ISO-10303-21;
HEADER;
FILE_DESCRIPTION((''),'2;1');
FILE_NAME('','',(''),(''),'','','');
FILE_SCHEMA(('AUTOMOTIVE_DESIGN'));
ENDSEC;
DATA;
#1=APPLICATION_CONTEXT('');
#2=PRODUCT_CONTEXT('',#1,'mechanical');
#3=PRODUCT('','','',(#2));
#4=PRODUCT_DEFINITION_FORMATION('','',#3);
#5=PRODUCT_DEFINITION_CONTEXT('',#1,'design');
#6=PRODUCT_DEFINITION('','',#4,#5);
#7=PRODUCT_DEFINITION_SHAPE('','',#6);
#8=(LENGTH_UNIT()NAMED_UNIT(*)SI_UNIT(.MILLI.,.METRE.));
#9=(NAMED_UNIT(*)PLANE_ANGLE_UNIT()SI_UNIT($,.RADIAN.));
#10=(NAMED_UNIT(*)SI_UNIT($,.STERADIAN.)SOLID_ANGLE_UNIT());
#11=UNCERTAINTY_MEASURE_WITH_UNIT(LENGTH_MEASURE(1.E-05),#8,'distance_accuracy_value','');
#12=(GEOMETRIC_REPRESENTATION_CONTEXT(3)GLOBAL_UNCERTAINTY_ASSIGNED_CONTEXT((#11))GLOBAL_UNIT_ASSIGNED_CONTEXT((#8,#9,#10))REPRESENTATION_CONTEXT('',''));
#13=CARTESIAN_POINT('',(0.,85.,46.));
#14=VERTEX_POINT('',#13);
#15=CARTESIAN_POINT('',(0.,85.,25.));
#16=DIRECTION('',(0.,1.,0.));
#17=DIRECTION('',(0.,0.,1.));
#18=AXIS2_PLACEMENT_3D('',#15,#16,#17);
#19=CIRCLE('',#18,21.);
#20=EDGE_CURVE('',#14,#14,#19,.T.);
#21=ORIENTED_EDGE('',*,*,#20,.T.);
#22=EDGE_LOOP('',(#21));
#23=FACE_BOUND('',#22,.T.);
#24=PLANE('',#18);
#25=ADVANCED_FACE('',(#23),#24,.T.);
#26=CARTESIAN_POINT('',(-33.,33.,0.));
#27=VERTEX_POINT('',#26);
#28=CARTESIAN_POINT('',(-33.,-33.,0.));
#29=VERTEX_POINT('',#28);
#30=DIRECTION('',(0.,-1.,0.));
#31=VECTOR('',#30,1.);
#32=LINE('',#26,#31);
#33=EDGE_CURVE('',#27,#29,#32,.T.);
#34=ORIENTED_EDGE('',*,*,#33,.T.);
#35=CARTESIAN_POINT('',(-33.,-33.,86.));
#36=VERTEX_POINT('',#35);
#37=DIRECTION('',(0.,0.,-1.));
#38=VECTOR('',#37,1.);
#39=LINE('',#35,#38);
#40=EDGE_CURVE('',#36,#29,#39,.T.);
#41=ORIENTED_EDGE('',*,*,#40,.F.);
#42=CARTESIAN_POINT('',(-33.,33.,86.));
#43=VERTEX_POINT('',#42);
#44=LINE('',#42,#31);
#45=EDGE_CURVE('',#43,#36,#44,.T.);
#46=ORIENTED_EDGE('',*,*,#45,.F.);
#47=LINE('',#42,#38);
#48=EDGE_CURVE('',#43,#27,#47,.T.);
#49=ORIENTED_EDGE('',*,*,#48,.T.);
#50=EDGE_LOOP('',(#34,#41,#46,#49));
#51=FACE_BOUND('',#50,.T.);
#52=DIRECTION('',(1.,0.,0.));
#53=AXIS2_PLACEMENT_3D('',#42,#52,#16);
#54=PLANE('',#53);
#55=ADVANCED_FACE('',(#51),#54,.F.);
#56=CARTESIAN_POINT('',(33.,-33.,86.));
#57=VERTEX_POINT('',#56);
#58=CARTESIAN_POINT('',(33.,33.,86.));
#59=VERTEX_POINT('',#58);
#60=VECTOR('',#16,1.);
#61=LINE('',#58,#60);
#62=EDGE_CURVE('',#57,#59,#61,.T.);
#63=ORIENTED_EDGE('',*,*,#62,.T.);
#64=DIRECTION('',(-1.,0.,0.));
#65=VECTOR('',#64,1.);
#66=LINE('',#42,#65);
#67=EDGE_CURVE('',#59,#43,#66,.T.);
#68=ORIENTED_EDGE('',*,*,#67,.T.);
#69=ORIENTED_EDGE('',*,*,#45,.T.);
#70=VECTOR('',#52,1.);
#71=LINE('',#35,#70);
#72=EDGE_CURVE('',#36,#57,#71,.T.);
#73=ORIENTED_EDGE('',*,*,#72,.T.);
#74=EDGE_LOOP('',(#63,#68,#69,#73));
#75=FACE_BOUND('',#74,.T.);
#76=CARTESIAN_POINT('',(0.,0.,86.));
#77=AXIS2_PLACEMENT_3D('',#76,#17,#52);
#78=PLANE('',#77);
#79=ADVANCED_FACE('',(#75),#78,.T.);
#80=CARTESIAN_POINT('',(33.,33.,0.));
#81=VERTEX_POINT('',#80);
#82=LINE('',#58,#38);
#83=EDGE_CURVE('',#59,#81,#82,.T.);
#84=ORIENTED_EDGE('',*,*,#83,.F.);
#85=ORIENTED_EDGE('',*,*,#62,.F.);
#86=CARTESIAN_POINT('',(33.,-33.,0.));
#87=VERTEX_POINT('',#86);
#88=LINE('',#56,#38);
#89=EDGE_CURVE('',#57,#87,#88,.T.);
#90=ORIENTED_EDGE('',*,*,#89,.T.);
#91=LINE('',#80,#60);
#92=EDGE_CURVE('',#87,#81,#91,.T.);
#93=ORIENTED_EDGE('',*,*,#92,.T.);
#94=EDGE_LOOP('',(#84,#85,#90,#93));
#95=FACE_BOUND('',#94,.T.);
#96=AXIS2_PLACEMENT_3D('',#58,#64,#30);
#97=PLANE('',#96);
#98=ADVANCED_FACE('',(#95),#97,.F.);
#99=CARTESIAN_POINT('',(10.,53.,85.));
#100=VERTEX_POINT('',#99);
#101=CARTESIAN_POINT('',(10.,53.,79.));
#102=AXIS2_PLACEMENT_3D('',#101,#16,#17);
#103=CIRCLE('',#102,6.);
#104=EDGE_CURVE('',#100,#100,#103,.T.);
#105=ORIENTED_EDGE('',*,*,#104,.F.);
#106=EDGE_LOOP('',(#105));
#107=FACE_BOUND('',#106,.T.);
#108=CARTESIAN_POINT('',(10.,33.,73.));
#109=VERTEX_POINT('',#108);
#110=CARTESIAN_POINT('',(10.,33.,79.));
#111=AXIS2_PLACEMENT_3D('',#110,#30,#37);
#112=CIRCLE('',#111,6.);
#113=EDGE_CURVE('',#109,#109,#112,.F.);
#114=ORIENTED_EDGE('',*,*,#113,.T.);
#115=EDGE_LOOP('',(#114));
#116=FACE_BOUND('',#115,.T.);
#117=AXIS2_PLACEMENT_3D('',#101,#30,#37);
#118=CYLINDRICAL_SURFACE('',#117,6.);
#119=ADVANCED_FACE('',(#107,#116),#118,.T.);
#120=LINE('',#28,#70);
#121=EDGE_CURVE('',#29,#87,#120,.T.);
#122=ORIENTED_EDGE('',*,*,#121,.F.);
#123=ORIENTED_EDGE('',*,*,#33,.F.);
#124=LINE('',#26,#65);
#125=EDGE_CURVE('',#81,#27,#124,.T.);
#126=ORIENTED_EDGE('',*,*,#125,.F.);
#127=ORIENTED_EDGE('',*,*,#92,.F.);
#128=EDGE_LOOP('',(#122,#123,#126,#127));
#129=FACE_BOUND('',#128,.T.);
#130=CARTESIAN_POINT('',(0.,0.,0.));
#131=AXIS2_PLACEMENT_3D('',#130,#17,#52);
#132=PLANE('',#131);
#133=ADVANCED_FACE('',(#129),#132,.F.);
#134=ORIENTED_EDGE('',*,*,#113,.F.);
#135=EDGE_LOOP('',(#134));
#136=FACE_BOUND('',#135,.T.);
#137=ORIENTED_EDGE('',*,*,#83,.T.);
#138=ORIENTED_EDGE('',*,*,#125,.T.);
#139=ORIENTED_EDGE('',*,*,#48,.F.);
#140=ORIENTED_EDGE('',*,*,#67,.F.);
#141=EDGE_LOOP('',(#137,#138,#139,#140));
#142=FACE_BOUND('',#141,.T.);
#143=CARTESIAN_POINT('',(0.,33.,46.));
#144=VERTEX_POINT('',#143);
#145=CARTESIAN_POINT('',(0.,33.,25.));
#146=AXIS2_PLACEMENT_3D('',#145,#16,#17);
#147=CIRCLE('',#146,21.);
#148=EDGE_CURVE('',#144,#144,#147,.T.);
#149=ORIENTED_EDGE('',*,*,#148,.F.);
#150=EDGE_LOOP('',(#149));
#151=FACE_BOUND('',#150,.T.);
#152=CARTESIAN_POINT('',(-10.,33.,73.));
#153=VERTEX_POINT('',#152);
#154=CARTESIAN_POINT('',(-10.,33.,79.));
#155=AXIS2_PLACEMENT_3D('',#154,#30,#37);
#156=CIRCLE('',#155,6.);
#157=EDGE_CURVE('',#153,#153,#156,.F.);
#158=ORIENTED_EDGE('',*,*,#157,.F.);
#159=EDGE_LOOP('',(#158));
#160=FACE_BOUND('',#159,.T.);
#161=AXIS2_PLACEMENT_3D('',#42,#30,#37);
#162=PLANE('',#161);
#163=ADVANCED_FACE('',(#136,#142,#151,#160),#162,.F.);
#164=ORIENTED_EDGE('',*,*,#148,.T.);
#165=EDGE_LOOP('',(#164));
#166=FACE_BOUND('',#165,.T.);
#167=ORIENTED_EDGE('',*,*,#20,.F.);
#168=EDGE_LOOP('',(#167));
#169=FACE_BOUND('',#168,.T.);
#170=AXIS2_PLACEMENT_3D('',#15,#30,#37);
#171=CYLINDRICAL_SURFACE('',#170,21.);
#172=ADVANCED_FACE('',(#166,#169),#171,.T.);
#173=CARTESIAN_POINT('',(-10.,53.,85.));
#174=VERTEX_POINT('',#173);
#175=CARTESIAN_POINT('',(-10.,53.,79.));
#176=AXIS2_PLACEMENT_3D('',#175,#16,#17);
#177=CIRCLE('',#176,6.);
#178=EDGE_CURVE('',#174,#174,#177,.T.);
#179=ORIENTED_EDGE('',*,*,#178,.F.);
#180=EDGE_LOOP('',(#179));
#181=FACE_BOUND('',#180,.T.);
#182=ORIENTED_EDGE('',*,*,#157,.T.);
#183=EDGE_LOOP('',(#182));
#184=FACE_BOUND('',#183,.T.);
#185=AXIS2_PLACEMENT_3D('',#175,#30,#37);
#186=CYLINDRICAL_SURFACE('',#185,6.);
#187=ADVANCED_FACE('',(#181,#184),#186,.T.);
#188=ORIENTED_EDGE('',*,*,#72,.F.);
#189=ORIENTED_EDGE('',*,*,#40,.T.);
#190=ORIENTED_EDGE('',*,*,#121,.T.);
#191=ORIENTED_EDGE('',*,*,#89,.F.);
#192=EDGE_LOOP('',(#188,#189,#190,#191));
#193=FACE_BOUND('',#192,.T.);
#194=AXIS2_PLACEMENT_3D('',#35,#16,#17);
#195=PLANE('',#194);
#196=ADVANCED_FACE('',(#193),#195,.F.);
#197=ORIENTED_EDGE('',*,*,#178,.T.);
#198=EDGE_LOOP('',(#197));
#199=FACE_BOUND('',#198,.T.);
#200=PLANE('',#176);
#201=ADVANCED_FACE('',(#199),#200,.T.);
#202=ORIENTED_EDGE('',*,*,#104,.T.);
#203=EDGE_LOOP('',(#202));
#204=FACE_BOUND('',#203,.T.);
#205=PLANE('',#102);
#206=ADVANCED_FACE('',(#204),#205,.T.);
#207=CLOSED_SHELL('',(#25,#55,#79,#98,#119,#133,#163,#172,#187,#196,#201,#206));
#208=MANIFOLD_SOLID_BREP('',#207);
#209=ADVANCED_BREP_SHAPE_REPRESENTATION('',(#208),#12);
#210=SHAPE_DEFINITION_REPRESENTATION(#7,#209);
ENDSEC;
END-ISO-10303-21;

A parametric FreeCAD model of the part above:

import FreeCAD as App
import Part
import Sketcher

V = App.Vector
Q = App.Units.Quantity


def add_polygon(sketch, points):
    """Adds a closed chain of lines whose ends are joined by coincident constraints."""
    first, n = sketch.GeometryCount, len(points)
    for a, b in zip(points, points[1:] + points[:1]):
        sketch.addGeometry(Part.LineSegment(App.Vector(*a, 0), App.Vector(*b, 0)), False)
    for i in range(n):
        sketch.addConstraint(Sketcher.Constraint("Coincident", first + i, 2, first + (i + 1) % n, 1))

doc = App.newDocument("Part")
params = doc.addObject("Spreadsheet::Sheet", "Params")
for row, (alias, value) in enumerate([
    ("sketch1_width", "66 mm"),
    ("pad1_length", "86 mm"),
    ("sketch2_diameter", "42 mm"),
    ("pad2_length", "52 mm"),
    ("sketch3_diameter", "12 mm"),
    ("pad3_length", "20 mm"),
], start=1):
    params.set(f"A{row}", alias)
    params.set(f"B{row}", "=" + value)
    params.setAlias(f"B{row}", alias)

body = doc.addObject("PartDesign::Body", "Body")

# Sketch on XY plane
sketch1 = body.newObject("Sketcher::SketchObject", "Sketch")
sketch1.AttachmentSupport = (doc.getObject("XY_Plane"), [""])
sketch1.MapMode = "FlatFace"
add_polygon(sketch1, [(-33, 33), (-33, -33), (33, -33), (33, 33)])  # lines 0-3
sketch1.addConstraint(Sketcher.Constraint("Vertical", 0))
sketch1.addConstraint(Sketcher.Constraint("Horizontal", 1))
sketch1.addConstraint(Sketcher.Constraint("Vertical", 2))
sketch1.addConstraint(Sketcher.Constraint("Horizontal", 3))
sketch1.addConstraint(Sketcher.Constraint("Symmetric", 0, 2, 2, 2, -1, 1))
sketch1.addConstraint(Sketcher.Constraint("Equal", 3, 0))
sketch1.addConstraint(Sketcher.Constraint("DistanceX", 1, 1, 1, 2, Q("66 mm")))
sketch1.setExpression("Constraints[10]", "Params.sketch1_width")
pad1 = body.newObject("PartDesign::Pad", "Pad")
pad1.Profile = sketch1
pad1.setExpression("Length", "Params.pad1_length")

# Sketch on XZ plane
sketch2 = body.newObject("Sketcher::SketchObject", "Sketch001")
sketch2.AttachmentSupport = (doc.getObject("XZ_Plane"), [""])
sketch2.MapMode = "FlatFace"
sketch2.AttachmentOffset = App.Placement(V(0, 0, -33), App.Rotation())
sketch2.addGeometry(Part.Circle(V(0, 25, 0), V(0, 0, 1), 21), False)
sketch2.addConstraint(Sketcher.Constraint("PointOnObject", 0, 3, -2))
sketch2.addConstraint(Sketcher.Constraint("Diameter", 0, Q("42 mm")))
sketch2.addConstraint(Sketcher.Constraint("DistanceY", -1, 1, 0, 3, Q("25 mm")))
sketch2.setExpression("Constraints[1]", "Params.sketch2_diameter")
pad2 = body.newObject("PartDesign::Pad", "Pad001")
pad2.Profile = sketch2
pad2.setExpression("Length", "Params.pad2_length")
pad2.Reversed = True

# Sketch on XZ plane
sketch3 = body.newObject("Sketcher::SketchObject", "Sketch002")
sketch3.AttachmentSupport = (doc.getObject("XZ_Plane"), [""])
sketch3.MapMode = "FlatFace"
sketch3.AttachmentOffset = App.Placement(V(0, 0, -33), App.Rotation())
sketch3.addGeometry(Part.Circle(V(-10, 79, 0), V(0, 0, 1), 6), False)
sketch3.addGeometry(Part.Circle(V(10, 79, 0), V(0, 0, 1), 6), False)
sketch3.addConstraint(Sketcher.Constraint("Equal", 0, 1))
sketch3.addConstraint(Sketcher.Constraint("Symmetric", 0, 3, 1, 3, -2))
sketch3.addConstraint(Sketcher.Constraint("Diameter", 0, Q("12 mm")))
sketch3.addConstraint(Sketcher.Constraint("DistanceX", 0, 3, -1, 1, Q("10 mm")))
sketch3.addConstraint(Sketcher.Constraint("DistanceY", -1, 1, 0, 3, Q("79 mm")))
sketch3.setExpression("Constraints[2]", "Params.sketch3_diameter")
pad3 = body.newObject("PartDesign::Pad", "Pad002")
pad3.Profile = sketch3
pad3.setExpression("Length", "Params.pad3_length")
pad3.Reversed = True

doc.recompute()
